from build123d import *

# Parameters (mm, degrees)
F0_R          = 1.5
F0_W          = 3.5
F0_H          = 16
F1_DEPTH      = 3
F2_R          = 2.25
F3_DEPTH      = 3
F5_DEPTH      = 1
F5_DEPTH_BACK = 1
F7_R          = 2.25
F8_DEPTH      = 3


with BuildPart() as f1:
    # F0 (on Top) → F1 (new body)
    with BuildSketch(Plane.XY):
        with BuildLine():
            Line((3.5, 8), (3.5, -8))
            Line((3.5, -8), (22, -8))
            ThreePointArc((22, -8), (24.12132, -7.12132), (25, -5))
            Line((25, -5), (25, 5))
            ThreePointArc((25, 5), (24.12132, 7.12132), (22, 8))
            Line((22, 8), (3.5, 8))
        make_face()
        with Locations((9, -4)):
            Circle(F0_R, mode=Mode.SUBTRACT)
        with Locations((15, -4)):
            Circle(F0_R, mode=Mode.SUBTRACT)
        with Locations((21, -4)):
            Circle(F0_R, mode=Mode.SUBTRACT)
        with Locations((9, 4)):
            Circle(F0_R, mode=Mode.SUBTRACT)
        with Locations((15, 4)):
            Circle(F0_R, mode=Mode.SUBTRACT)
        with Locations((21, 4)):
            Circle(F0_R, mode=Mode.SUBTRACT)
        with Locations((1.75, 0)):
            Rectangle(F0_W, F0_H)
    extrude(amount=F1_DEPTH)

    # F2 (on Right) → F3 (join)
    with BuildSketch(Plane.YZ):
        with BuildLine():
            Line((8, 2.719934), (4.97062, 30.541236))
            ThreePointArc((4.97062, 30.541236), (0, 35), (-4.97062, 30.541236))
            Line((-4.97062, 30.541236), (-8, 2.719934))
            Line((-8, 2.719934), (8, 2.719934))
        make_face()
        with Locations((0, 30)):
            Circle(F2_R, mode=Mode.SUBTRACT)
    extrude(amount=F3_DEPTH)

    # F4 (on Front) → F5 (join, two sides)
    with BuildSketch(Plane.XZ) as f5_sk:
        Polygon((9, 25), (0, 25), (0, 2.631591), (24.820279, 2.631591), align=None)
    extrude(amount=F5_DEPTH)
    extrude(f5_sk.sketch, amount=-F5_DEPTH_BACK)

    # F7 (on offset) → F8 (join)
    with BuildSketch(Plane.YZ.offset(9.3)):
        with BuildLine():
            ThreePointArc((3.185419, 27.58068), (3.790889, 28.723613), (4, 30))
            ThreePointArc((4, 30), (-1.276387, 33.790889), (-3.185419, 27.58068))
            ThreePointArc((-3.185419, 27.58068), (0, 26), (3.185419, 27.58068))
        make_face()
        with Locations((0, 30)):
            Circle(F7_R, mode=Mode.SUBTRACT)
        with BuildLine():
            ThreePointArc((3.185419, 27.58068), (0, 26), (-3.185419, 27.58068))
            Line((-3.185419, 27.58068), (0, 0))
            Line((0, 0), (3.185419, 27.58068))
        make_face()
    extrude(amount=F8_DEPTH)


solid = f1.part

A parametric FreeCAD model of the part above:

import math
import FreeCAD as App
import Part
import Sketcher
Q = App.Units.Quantity

doc = App.newDocument("Part")
body = doc.addObject("PartDesign::Body", "Body")

sketch1 = body.newObject("Sketcher::SketchObject", "Sketch")
sketch1.AttachmentSupport = (doc.getObject("XY_Plane"), [""])
sketch1.MapMode = "FlatFace"
sketch1.addGeometry(Part.LineSegment(App.Vector(22, 8, 0), App.Vector(0, 8, 0)), False)
sketch1.addGeometry(Part.LineSegment(App.Vector(0, 8, 0), App.Vector(0, -8, 0)), False)
sketch1.addGeometry(Part.LineSegment(App.Vector(0, -8, 0), App.Vector(22, -8, 0)), False)
sketch1.addGeometry(Part.ArcOfCircle(Part.Circle(App.Vector(22, -5, 0), App.Vector(0, 0, 1), 3), math.radians(-90), math.radians(0)), False)
sketch1.addGeometry(Part.LineSegment(App.Vector(25, -5, 0), App.Vector(25, 5, 0)), False)
sketch1.addGeometry(Part.ArcOfCircle(Part.Circle(App.Vector(22, 5, 0), App.Vector(0, 0, 1), 3), math.radians(0), math.radians(90)), False)
sketch1.addGeometry(Part.Circle(App.Vector(9, -4, 0), App.Vector(0, 0, 1), 1.5), False)
sketch1.addGeometry(Part.Circle(App.Vector(15, -4, 0), App.Vector(0, 0, 1), 1.5), False)
sketch1.addGeometry(Part.Circle(App.Vector(21, -4, 0), App.Vector(0, 0, 1), 1.5), False)
sketch1.addGeometry(Part.Circle(App.Vector(9, 4, 0), App.Vector(0, 0, 1), 1.5), False)
sketch1.addGeometry(Part.Circle(App.Vector(15, 4, 0), App.Vector(0, 0, 1), 1.5), False)
sketch1.addGeometry(Part.Circle(App.Vector(21, 4, 0), App.Vector(0, 0, 1), 1.5), False)
sketch1.addConstraint(Sketcher.Constraint("Coincident", 0, 2, 1, 1))
sketch1.addConstraint(Sketcher.Constraint("Coincident", 1, 2, 2, 1))
sketch1.addConstraint(Sketcher.Constraint("Tangent", 2, 2, 3, 1))
sketch1.addConstraint(Sketcher.Constraint("Tangent", 3, 2, 4, 1))
sketch1.addConstraint(Sketcher.Constraint("Tangent", 4, 2, 5, 1))
sketch1.addConstraint(Sketcher.Constraint("Tangent", 5, 2, 0, 1))
sketch1.addConstraint(Sketcher.Constraint("Horizontal", 0))
sketch1.addConstraint(Sketcher.Constraint("Vertical", 1))
sketch1.addConstraint(Sketcher.Constraint("Horizontal", 2))
sketch1.addConstraint(Sketcher.Constraint("Vertical", 4))
sketch1.addConstraint(Sketcher.Constraint("Equal", 3, 5))
sketch1.addConstraint(Sketcher.Constraint("Equal", 6, 7))
sketch1.addConstraint(Sketcher.Constraint("Equal", 7, 8))
sketch1.addConstraint(Sketcher.Constraint("Equal", 8, 9))
sketch1.addConstraint(Sketcher.Constraint("Equal", 9, 10))
sketch1.addConstraint(Sketcher.Constraint("Equal", 10, 11))
sketch1.addConstraint(Sketcher.Constraint("Symmetric", 0, 2, 1, 2, -1, 1))
sketch1.addConstraint(Sketcher.Constraint("Symmetric", 6, 3, 9, 3, -1))
sketch1.addConstraint(Sketcher.Constraint("Symmetric", 7, 3, 10, 3, -1))
sketch1.addConstraint(Sketcher.Constraint("Symmetric", 8, 3, 11, 3, -1))
sketch1.addConstraint(Sketcher.Constraint("Horizontal", 6, 3, 7, 3))
sketch1.addConstraint(Sketcher.Constraint("Horizontal", 7, 3, 8, 3))
sketch1.addConstraint(Sketcher.Constraint("Diameter", 6, Q("3 mm")))
sketch1.addConstraint(Sketcher.Constraint("Radius", 3, Q("3.000001 mm")))
sketch1.addConstraint(Sketcher.Constraint("DistanceX", 0, 2, 0, 1, Q("22 mm")))
sketch1.addConstraint(Sketcher.Constraint("DistanceY", 1, 2, 1, 1, Q("16 mm")))
sketch1.addConstraint(Sketcher.Constraint("DistanceX", -1, 1, 6, 3, Q("9 mm")))
sketch1.addConstraint(Sketcher.Constraint("DistanceY", 6, 3, -1, 1, Q("4 mm")))
sketch1.addConstraint(Sketcher.Constraint("DistanceX", -1, 1, 7, 3, Q("15 mm")))
sketch1.addConstraint(Sketcher.Constraint("DistanceX", -1, 1, 8, 3, Q("21 mm")))
pad1 = body.newObject("PartDesign::Pad", "Pad")
pad1.Profile = sketch1
pad1.Length = 3

sketch2 = body.newObject("Sketcher::SketchObject", "Sketch001")
sketch2.AttachmentSupport = (doc.getObject("YZ_Plane"), [""])
sketch2.MapMode = "FlatFace"
sketch2.addGeometry(Part.LineSegment(App.Vector(8, 2.7, 0), App.Vector(5, 30.5, 0)), False)
sketch2.addGeometry(Part.ArcOfCircle(Part.Circle(App.Vector(0, 30, 0), App.Vector(0, 0, 1), 5), math.radians(6), math.radians(174)), False)
sketch2.addGeometry(Part.LineSegment(App.Vector(-5, 30.5, 0), App.Vector(-8, 2.7, 0)), False)
sketch2.addGeometry(Part.LineSegment(App.Vector(-8, 2.7, 0), App.Vector(8, 2.7, 0)), False)
sketch2.addGeometry(Part.Circle(App.Vector(0, 30, 0), App.Vector(0, 0, 1), 2.2), False)
sketch2.addConstraint(Sketcher.Constraint("Tangent", 0, 2, 1, 1))
sketch2.addConstraint(Sketcher.Constraint("Tangent", 1, 2, 2, 1))
sketch2.addConstraint(Sketcher.Constraint("Coincident", 2, 2, 3, 1))
sketch2.addConstraint(Sketcher.Constraint("Coincident", 3, 2, 0, 1))
sketch2.addConstraint(Sketcher.Constraint("Horizontal", 3))
sketch2.addConstraint(Sketcher.Constraint("Coincident", 4, 3, 1, 3))
sketch2.addConstraint(Sketcher.Constraint("Symmetric", 0, 2, 1, 2, -2))
sketch2.addConstraint(Sketcher.Constraint("Radius", 1, Q("5 mm")))
sketch2.addConstraint(Sketcher.Constraint("Diameter", 4, Q("4.5 mm")))
sketch2.addConstraint(Sketcher.Constraint("DistanceX", 3, 1, 3, 2, Q("16 mm")))
sketch2.addConstraint(Sketcher.Constraint("DistanceY", -1, 1, 1, 3, Q("30 mm")))
sketch2.addConstraint(Sketcher.Constraint("DistanceY", 2, 2, 1, 2, Q("27.821302 mm")))
pad2 = body.newObject("PartDesign::Pad", "Pad001")
pad2.Profile = sketch2
pad2.Length = 3

sketch3 = body.newObject("Sketcher::SketchObject", "Sketch002")
sketch3.AttachmentSupport = (doc.getObject("XZ_Plane"), [""])
sketch3.MapMode = "FlatFace"
sketch3.addGeometry(Part.LineSegment(App.Vector(9, 25, 0), App.Vector(0, 25, 0)), False)
sketch3.addGeometry(Part.LineSegment(App.Vector(0, 25, 0), App.Vector(0, 3, 0)), False)
sketch3.addGeometry(Part.LineSegment(App.Vector(0, 3, 0), App.Vector(25, 3, 0)), False)
sketch3.addGeometry(Part.LineSegment(App.Vector(25, 3, 0), App.Vector(9, 25, 0)), False)
sketch3.addConstraint(Sketcher.Constraint("Coincident", 0, 2, 1, 1))
sketch3.addConstraint(Sketcher.Constraint("Coincident", 1, 2, 2, 1))
sketch3.addConstraint(Sketcher.Constraint("Coincident", 2, 2, 3, 1))
sketch3.addConstraint(Sketcher.Constraint("Coincident", 3, 2, 0, 1))
sketch3.addConstraint(Sketcher.Constraint("Horizontal", 0))
sketch3.addConstraint(Sketcher.Constraint("Vertical", 1))
sketch3.addConstraint(Sketcher.Constraint("Horizontal", 2))
sketch3.addConstraint(Sketcher.Constraint("PointOnObject", 0, 2, -2))
sketch3.addConstraint(Sketcher.Constraint("DistanceX", 0, 2, 0, 1, Q("9 mm")))
sketch3.addConstraint(Sketcher.Constraint("DistanceY", -1, 1, 0, 2, Q("25 mm")))
sketch3.addConstraint(Sketcher.Constraint("DistanceX", 2, 1, 2, 2, Q("24.820279 mm")))
sketch3.addConstraint(Sketcher.Constraint("DistanceY", 1, 2, 1, 1, Q("22.368409 mm")))
pad3 = body.newObject("PartDesign::Pad", "Pad002")
pad3.Profile = sketch3
pad3.Type = "TwoLengths"
pad3.Length = 1
pad3.Length2 = 1

sketch4 = body.newObject("Sketcher::SketchObject", "Sketch003")
sketch4.AttachmentSupport = (doc.getObject("YZ_Plane"), [""])
sketch4.MapMode = "FlatFace"
sketch4.AttachmentOffset = App.Placement(App.Vector(0, 0, 9.3), App.Rotation())
sketch4.addGeometry(Part.ArcOfCircle(Part.Circle(App.Vector(0, 30, 0), App.Vector(0, 0, 1), 4), math.radians(-37), math.radians(0)), False)
sketch4.addGeometry(Part.ArcOfCircle(Part.Circle(App.Vector(0, 30, 0), App.Vector(0, 0, 1), 4), math.radians(0), math.radians(217)), False)
sketch4.addGeometry(Part.LineSegment(App.Vector(-3.2, 27.6, 0), App.Vector(0, 0, 0)), False)
sketch4.addGeometry(Part.LineSegment(App.Vector(0, 0, 0), App.Vector(3.2, 27.6, 0)), False)
sketch4.addGeometry(Part.Circle(App.Vector(0, 30, 0), App.Vector(0, 0, 1), 2.2), False)
sketch4.addConstraint(Sketcher.Constraint("Tangent", 0, 2, 1, 1))
sketch4.addConstraint(Sketcher.Constraint("Coincident", 1, 2, 2, 1))
sketch4.addConstraint(Sketcher.Constraint("Coincident", 2, 2, 3, 1))
sketch4.addConstraint(Sketcher.Constraint("Coincident", 3, 2, 0, 1))
sketch4.addConstraint(Sketcher.Constraint("Coincident", 2, 2, -1, 1))
sketch4.addConstraint(Sketcher.Constraint("Coincident", 4, 3, 0, 3))
sketch4.addConstraint(Sketcher.Constraint("Symmetric", 1, 2, 3, 2, -2))
sketch4.addConstraint(Sketcher.Constraint("PointOnObject", 1, 3, -2))
sketch4.addConstraint(Sketcher.Constraint("Horizontal", 4, 3, 0, 2))
sketch4.addConstraint(Sketcher.Constraint("Radius", 1, Q("4 mm")))
sketch4.addConstraint(Sketcher.Constraint("Diameter", 4, Q("4.5 mm")))
sketch4.addConstraint(Sketcher.Constraint("DistanceY", -1, 1, 0, 3, Q("29.999998 mm")))
sketch4.addConstraint(Sketcher.Constraint("Distance", 2, Q("27.76402 mm")))
pad4 = body.newObject("PartDesign::Pad", "Pad003")
pad4.Profile = sketch4
pad4.Length = 3

doc.recompute()
